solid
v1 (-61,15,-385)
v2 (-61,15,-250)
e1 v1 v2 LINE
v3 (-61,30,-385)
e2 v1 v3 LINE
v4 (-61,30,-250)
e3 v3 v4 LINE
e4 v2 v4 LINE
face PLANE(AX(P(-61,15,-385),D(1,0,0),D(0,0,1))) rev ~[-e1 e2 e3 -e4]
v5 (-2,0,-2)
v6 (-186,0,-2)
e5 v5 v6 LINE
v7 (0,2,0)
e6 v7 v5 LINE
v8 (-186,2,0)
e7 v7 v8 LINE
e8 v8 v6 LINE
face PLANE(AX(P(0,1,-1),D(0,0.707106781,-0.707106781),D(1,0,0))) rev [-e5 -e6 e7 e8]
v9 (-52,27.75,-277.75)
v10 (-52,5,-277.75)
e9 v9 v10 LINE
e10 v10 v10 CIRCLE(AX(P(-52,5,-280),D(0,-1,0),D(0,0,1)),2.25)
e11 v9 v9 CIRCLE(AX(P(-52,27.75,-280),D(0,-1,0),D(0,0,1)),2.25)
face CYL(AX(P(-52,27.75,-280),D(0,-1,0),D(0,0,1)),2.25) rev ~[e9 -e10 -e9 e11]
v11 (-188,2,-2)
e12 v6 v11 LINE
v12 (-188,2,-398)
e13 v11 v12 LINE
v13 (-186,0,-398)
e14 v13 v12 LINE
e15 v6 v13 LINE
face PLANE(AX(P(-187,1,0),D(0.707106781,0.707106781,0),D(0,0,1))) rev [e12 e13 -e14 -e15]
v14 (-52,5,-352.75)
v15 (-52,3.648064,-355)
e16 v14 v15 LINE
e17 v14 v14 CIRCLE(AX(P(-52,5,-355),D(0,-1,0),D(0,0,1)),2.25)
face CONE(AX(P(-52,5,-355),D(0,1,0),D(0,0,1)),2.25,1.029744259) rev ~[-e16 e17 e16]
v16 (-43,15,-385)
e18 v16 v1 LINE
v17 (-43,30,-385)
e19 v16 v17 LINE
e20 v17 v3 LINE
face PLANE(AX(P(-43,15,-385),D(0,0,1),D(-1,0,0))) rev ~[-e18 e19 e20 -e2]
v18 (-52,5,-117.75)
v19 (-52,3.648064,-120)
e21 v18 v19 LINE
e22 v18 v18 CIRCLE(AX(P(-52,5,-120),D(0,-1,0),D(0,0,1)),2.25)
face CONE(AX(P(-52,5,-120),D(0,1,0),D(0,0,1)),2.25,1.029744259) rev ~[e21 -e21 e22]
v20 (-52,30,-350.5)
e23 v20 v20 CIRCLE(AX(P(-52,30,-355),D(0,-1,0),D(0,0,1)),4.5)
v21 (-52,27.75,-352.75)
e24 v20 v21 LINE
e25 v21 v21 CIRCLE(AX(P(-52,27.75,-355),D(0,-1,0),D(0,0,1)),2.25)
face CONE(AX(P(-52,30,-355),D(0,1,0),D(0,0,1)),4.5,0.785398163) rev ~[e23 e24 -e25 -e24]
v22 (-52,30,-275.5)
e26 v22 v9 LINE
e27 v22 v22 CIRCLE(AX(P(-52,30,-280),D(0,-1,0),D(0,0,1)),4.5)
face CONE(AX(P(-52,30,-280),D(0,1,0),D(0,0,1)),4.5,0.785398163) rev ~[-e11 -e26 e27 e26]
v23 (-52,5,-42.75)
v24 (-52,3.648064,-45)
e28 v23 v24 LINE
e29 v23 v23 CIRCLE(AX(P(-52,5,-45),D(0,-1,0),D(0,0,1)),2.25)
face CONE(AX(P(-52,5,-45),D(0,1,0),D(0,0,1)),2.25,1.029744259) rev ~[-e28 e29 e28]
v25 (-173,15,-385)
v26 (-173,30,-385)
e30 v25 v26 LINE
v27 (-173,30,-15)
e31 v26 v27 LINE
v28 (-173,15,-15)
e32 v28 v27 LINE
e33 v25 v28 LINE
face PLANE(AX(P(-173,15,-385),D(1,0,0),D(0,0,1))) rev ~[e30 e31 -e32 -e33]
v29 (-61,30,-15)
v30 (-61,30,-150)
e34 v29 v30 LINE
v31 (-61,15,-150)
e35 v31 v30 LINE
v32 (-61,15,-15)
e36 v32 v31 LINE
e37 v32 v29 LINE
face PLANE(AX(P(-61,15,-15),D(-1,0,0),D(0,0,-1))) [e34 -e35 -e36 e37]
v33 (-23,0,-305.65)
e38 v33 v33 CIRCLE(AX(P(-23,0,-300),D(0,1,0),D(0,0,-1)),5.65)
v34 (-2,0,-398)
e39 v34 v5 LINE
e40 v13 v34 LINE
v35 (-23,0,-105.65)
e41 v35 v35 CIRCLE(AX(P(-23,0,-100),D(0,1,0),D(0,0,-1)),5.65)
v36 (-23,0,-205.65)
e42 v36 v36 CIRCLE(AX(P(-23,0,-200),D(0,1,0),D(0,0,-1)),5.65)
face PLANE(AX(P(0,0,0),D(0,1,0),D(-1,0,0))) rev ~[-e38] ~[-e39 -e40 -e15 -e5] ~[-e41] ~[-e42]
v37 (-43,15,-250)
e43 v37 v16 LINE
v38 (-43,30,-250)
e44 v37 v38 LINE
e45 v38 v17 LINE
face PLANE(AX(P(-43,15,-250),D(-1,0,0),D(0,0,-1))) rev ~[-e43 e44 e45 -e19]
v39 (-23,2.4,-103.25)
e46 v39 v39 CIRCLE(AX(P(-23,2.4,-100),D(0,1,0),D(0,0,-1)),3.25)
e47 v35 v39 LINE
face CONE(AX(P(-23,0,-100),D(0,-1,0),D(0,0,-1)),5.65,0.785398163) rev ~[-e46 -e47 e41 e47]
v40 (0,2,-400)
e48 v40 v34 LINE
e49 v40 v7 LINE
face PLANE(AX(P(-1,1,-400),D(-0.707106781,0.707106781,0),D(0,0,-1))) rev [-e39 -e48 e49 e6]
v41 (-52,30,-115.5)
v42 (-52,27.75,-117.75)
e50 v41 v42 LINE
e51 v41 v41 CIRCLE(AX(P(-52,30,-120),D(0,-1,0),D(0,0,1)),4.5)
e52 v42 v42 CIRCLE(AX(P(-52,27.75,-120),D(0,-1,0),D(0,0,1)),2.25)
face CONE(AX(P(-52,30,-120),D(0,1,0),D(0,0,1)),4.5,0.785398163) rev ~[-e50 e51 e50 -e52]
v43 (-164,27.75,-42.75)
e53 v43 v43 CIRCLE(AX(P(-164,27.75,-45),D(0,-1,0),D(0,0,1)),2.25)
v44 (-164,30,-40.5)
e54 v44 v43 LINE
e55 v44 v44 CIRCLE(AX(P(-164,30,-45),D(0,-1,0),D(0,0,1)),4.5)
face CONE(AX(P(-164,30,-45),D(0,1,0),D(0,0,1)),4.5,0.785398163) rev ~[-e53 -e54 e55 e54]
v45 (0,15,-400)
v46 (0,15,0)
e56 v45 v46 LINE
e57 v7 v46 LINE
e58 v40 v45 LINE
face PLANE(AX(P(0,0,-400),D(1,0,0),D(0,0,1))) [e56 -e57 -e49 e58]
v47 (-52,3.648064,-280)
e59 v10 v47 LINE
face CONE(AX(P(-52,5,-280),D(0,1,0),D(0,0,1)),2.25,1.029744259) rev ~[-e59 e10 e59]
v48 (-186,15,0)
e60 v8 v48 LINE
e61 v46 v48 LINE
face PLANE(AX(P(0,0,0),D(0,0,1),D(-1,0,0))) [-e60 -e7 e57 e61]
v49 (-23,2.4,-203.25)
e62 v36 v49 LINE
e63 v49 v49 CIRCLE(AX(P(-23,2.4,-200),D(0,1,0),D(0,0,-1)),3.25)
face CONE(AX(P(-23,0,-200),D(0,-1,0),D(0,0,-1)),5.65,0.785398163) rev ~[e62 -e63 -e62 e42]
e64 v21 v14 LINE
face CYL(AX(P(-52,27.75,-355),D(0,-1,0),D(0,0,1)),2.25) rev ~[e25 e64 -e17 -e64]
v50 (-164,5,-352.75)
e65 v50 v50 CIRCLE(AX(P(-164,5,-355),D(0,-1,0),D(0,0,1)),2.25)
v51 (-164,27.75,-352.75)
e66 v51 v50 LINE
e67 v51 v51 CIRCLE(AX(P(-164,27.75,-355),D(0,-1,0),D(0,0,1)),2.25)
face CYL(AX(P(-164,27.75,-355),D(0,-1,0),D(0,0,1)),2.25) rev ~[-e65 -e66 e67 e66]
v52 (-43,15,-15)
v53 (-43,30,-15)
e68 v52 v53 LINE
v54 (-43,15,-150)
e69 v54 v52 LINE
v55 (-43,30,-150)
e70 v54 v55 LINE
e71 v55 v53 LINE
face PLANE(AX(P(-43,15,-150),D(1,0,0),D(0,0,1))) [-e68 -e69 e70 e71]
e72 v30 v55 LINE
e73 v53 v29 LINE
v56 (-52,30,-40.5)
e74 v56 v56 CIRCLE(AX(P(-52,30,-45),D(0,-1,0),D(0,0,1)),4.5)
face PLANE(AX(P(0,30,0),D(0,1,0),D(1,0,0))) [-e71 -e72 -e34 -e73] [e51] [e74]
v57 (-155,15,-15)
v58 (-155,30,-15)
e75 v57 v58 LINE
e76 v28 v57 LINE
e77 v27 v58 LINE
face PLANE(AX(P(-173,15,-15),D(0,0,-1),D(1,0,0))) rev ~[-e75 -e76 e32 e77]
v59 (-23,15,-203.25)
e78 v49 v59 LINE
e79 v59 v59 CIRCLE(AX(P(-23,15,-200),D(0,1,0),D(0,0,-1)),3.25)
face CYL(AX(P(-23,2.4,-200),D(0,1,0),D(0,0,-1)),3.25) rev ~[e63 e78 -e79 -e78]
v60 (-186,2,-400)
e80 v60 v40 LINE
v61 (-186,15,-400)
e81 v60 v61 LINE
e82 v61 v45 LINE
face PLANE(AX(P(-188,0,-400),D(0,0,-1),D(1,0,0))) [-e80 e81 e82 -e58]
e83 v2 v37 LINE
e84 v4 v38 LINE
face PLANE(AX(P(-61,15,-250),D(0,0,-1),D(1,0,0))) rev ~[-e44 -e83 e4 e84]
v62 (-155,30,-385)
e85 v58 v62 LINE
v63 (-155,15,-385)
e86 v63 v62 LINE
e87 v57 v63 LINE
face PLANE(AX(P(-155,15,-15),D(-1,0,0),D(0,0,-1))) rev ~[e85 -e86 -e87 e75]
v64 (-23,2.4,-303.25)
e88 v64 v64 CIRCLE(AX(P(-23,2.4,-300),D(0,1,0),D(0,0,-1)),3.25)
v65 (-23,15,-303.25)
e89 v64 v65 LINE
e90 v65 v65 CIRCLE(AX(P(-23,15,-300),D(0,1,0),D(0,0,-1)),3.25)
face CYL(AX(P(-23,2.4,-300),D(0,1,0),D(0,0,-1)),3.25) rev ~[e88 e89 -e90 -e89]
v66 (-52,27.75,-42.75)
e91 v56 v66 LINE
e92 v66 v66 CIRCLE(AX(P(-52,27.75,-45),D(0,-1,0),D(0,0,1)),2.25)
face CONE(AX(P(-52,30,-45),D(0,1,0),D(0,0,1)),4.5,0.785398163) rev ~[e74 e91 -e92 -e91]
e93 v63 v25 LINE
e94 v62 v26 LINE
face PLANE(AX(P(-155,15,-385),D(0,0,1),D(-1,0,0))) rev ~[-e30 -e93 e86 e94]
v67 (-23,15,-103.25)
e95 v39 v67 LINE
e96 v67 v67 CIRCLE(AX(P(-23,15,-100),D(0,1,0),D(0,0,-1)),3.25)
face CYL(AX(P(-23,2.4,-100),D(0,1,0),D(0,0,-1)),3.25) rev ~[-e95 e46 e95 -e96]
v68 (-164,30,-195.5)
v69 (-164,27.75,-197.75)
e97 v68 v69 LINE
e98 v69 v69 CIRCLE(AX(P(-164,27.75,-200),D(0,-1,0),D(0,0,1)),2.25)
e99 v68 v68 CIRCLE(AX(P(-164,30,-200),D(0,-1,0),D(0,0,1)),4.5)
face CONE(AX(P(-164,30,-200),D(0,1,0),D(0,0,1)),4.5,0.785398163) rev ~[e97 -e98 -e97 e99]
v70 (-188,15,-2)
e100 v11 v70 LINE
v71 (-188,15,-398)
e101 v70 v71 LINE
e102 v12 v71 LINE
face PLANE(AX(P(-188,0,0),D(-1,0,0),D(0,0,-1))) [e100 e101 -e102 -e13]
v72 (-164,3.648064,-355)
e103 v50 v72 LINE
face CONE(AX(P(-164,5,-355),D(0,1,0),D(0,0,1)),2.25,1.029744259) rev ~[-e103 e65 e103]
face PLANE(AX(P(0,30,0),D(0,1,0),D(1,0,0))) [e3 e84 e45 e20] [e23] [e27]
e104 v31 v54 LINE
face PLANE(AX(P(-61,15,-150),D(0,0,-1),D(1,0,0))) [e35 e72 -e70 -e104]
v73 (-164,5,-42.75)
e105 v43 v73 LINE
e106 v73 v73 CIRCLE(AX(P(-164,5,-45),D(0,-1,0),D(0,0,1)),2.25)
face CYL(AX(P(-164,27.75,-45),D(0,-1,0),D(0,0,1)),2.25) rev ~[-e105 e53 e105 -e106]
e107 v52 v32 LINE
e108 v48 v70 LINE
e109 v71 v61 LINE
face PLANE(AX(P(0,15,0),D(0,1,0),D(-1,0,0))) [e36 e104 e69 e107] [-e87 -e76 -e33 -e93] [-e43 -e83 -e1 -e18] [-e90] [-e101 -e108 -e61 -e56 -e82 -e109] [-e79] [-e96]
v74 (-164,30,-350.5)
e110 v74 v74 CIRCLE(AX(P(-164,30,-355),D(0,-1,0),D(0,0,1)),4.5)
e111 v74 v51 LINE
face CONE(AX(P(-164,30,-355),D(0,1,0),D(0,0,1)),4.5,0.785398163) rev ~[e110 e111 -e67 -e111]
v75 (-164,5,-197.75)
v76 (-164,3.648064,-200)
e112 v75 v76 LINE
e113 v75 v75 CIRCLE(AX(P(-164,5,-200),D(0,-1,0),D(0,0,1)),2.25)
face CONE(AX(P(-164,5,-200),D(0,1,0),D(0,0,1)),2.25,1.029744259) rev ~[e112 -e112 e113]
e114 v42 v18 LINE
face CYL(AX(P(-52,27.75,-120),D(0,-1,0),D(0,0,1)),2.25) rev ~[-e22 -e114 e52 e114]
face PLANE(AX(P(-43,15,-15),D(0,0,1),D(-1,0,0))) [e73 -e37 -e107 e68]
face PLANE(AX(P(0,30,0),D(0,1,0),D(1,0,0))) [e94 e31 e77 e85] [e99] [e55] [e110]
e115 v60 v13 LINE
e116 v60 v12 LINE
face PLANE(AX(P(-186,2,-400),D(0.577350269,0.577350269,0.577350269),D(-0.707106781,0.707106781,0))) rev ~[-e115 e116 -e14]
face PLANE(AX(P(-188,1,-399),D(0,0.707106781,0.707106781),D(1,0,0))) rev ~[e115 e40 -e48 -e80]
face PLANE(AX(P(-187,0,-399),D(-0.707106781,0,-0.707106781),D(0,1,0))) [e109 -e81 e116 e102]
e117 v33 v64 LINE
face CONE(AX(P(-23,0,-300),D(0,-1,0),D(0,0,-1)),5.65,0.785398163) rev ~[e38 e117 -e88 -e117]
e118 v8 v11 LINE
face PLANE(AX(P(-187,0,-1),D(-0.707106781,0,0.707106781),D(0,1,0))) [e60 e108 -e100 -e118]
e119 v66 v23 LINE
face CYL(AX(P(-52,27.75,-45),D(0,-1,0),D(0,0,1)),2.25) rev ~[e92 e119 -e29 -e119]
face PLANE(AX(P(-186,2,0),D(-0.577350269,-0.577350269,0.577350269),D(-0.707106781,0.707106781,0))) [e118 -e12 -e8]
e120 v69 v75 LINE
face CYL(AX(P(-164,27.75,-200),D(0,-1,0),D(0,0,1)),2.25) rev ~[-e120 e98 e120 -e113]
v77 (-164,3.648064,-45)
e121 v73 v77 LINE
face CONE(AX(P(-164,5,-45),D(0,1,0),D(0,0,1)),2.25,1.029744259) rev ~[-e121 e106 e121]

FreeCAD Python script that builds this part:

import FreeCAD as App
import Part
import Sketcher
from FreeCAD import Vector
Q = App.Units.Quantity


def edges_at(feature, points):
    """Names of the edges that pass closest to the given points."""
    edges = feature.Shape.Edges
    near = lambda p: min(range(len(edges)), key=lambda i: edges[i].distToShape(Part.Vertex(*p))[0])
    return sorted({f"Edge{near(p) + 1}" for p in points})

doc = App.newDocument("Part")
body = doc.addObject("PartDesign::Body", "Body")

# Sketch on XZ plane
sketch1 = doc.addObject("Sketcher::SketchObject", "Sketch")
body.addObject(sketch1)
sketch1.AttachmentSupport = (doc.XZ_Plane, [""])
sketch1.MapMode = "FlatFace"
sketch1.addGeometry([
    Part.LineSegment(Vector(-188, 0, 0), Vector(0, 0, 0)),
    Part.LineSegment(Vector(0, 0, 0), Vector(0, -400, 0)),
    Part.LineSegment(Vector(0, -400, 0), Vector(-188, -400, 0)),
    Part.LineSegment(Vector(-188, -400, 0), Vector(-188, 0, 0)),
], False)
sketch1.addConstraint([
    Sketcher.Constraint("Coincident", 0, 2, 1, 1),
    Sketcher.Constraint("Coincident", 1, 2, 2, 1),
    Sketcher.Constraint("Coincident", 2, 2, 3, 1),
    Sketcher.Constraint("Coincident", 3, 2, 0, 1),
    Sketcher.Constraint("Horizontal", 0),
    Sketcher.Constraint("Vertical", 1),
    Sketcher.Constraint("Horizontal", 2),
    Sketcher.Constraint("Vertical", 3),
    Sketcher.Constraint("Coincident", 0, 2, -1, 1),
    Sketcher.Constraint("DistanceX", 0, 1, 0, 2, Q("188 mm")),
    Sketcher.Constraint("DistanceY", 1, 2, 1, 1, Q("400 mm")),
])
pad1 = doc.addObject("PartDesign::Pad", "Pad")
body.addObject(pad1)
pad1.Profile = sketch1
pad1.Length = 15
pad1.Reversed = True

# Sketch on XZ plane
sketch2 = doc.addObject("Sketcher::SketchObject", "Sketch001")
body.addObject(sketch2)
sketch2.AttachmentSupport = (doc.XZ_Plane, [""])
sketch2.MapMode = "FlatFace"
sketch2.AttachmentOffset = App.Placement(Vector(0, 0, -15), App.Rotation())
sketch2.addGeometry([
    Part.LineSegment(Vector(-173, -385, 0), Vector(-173, -15, 0)),  # 0
    Part.LineSegment(Vector(-173, -15, 0), Vector(-155, -15, 0)),  # 1
    Part.LineSegment(Vector(-155, -15, 0), Vector(-155, -385, 0)),  # 2
    Part.LineSegment(Vector(-155, -385, 0), Vector(-173, -385, 0)),  # 3
    Part.LineSegment(Vector(-61, -15, 0), Vector(-43, -15, 0)),  # 4
    Part.LineSegment(Vector(-43, -15, 0), Vector(-43, -150, 0)),  # 5
    Part.LineSegment(Vector(-43, -150, 0), Vector(-61, -150, 0)),  # 6
    Part.LineSegment(Vector(-61, -150, 0), Vector(-61, -15, 0)),  # 7
    Part.LineSegment(Vector(-43, -250, 0), Vector(-43, -385, 0)),  # 8
    Part.LineSegment(Vector(-43, -385, 0), Vector(-61, -385, 0)),  # 9
    Part.LineSegment(Vector(-61, -385, 0), Vector(-61, -250, 0)),  # 10
    Part.LineSegment(Vector(-61, -250, 0), Vector(-43, -250, 0)),  # 11
], False)
sketch2.addConstraint([
    Sketcher.Constraint("Coincident", 0, 2, 1, 1),
    Sketcher.Constraint("Coincident", 1, 2, 2, 1),
    Sketcher.Constraint("Coincident", 2, 2, 3, 1),
    Sketcher.Constraint("Coincident", 3, 2, 0, 1),
    Sketcher.Constraint("Coincident", 4, 2, 5, 1),
    Sketcher.Constraint("Coincident", 5, 2, 6, 1),
    Sketcher.Constraint("Coincident", 6, 2, 7, 1),
    Sketcher.Constraint("Coincident", 7, 2, 4, 1),
    Sketcher.Constraint("Coincident", 8, 2, 9, 1),
    Sketcher.Constraint("Coincident", 9, 2, 10, 1),
    Sketcher.Constraint("Coincident", 10, 2, 11, 1),
    Sketcher.Constraint("Coincident", 11, 2, 8, 1),
    Sketcher.Constraint("Vertical", 0),
    Sketcher.Constraint("Horizontal", 1),
    Sketcher.Constraint("Vertical", 2),
    Sketcher.Constraint("Horizontal", 3),
    Sketcher.Constraint("Horizontal", 4),
    Sketcher.Constraint("Vertical", 5),
    Sketcher.Constraint("Horizontal", 6),
    Sketcher.Constraint("Vertical", 7),
    Sketcher.Constraint("Vertical", 8),
    Sketcher.Constraint("Horizontal", 9),
    Sketcher.Constraint("Vertical", 10),
    Sketcher.Constraint("Horizontal", 11),
    Sketcher.Constraint("Horizontal", 1, 2, 4, 2),
    Sketcher.Constraint("Horizontal", 3, 2, 8, 2),
    Sketcher.Constraint("Vertical", 5, 2, 8, 2),
    Sketcher.Constraint("Vertical", 7, 2, 9, 2),
    Sketcher.Constraint("Equal", 3, 4),
    Sketcher.Constraint("Equal", 7, 8),
    Sketcher.Constraint("DistanceX", 1, 1, 1, 2, Q("18 mm")),
    Sketcher.Constraint("DistanceY", 0, 1, 0, 2, Q("370 mm")),
    Sketcher.Constraint("DistanceY", 5, 2, 5, 1, Q("135 mm")),
    Sketcher.Constraint("DistanceY", 0, 2, -1, 1, Q("15 mm")),
    Sketcher.Constraint("DistanceX", 1, 2, -1, 1, Q("155 mm")),
    Sketcher.Constraint("DistanceX", 4, 2, -1, 1, Q("43 mm")),
])
pad2 = doc.addObject("PartDesign::Pad", "Pad001")
body.addObject(pad2)
pad2.Profile = sketch2
pad2.Length = 15
pad2.Reversed = True

# Sketch on XZ plane
sketch3 = doc.addObject("Sketcher::SketchObject", "Sketch002")
body.addObject(sketch3)
sketch3.AttachmentSupport = (doc.XZ_Plane, [""])
sketch3.MapMode = "FlatFace"
sketch3.AttachmentOffset = App.Placement(Vector(0, 0, -30), App.Rotation())
sketch3.addGeometry([
    Part.Circle(Vector(-52, -45, 0), Vector(0, 0, 1), 2.2),  # 0
    Part.Circle(Vector(-52, -120, 0), Vector(0, 0, 1), 2.2),  # 1
    Part.Circle(Vector(-52, -280, 0), Vector(0, 0, 1), 2.2),  # 2
    Part.Circle(Vector(-52, -355, 0), Vector(0, 0, 1), 2.2),  # 3
    Part.Circle(Vector(-164, -355, 0), Vector(0, 0, 1), 2.2),  # 4
    Part.Circle(Vector(-164, -200, 0), Vector(0, 0, 1), 2.2),  # 5
    Part.Circle(Vector(-164, -45, 0), Vector(0, 0, 1), 2.2),  # 6
], False)
sketch3.addConstraint([
    Sketcher.Constraint("Equal", 0, 1),
    Sketcher.Constraint("Equal", 1, 2),
    Sketcher.Constraint("Equal", 2, 3),
    Sketcher.Constraint("Equal", 3, 4),
    Sketcher.Constraint("Equal", 4, 5),
    Sketcher.Constraint("Equal", 5, 6),
    Sketcher.Constraint("Horizontal", 3, 3, 4, 3),
    Sketcher.Constraint("Horizontal", 0, 3, 6, 3),
    Sketcher.Constraint("Vertical", 0, 3, 1, 3),
    Sketcher.Constraint("Vertical", 1, 3, 2, 3),
    Sketcher.Constraint("Vertical", 2, 3, 3, 3),
    Sketcher.Constraint("Vertical", 4, 3, 5, 3),
    Sketcher.Constraint("Vertical", 5, 3, 6, 3),
    Sketcher.Constraint("Diameter", 0, Q("4.5 mm")),
    Sketcher.Constraint("DistanceX", 0, 3, -1, 1, Q("52 mm")),
    Sketcher.Constraint("DistanceY", 0, 3, -1, 1, Q("45 mm")),
    Sketcher.Constraint("DistanceY", 1, 3, -1, 1, Q("120 mm")),
    Sketcher.Constraint("DistanceY", 2, 3, -1, 1, Q("280 mm")),
    Sketcher.Constraint("DistanceY", 3, 3, -1, 1, Q("355 mm")),
    Sketcher.Constraint("DistanceX", 4, 3, -1, 1, Q("164 mm")),
    Sketcher.Constraint("DistanceY", 5, 3, -1, 1, Q("200 mm")),
])
doc.recompute()
hole = doc.addObject("PartDesign::Hole", "Hole")
body.addObject(hole)
hole.Profile = sketch3
hole.ThreadType = "None"
hole.Diameter = 4.5
hole.DepthType = "Dimension"
hole.Depth = 25
hole.DrillPoint = "Angled"
hole.DrillPointAngle = 118
hole.HoleCutType = "Countersink"
hole.HoleCutDiameter = 9
hole.HoleCutCountersinkAngle = 90
hole.Reversed = True

# Sketch on XZ plane
sketch4 = doc.addObject("Sketcher::SketchObject", "Sketch003")
body.addObject(sketch4)
sketch4.AttachmentSupport = (doc.XZ_Plane, [""])
sketch4.MapMode = "FlatFace"
sketch4.addGeometry([
    Part.Circle(Vector(-23, -100, 0), Vector(0, 0, 1), 3.2),
    Part.Circle(Vector(-23, -200, 0), Vector(0, 0, 1), 3.2),
    Part.Circle(Vector(-23, -300, 0), Vector(0, 0, 1), 3.2),
], False)
sketch4.addConstraint([
    Sketcher.Constraint("Equal", 0, 1),
    Sketcher.Constraint("Equal", 1, 2),
    Sketcher.Constraint("Vertical", 0, 3, 1, 3),
    Sketcher.Constraint("Vertical", 1, 3, 2, 3),
    Sketcher.Constraint("Diameter", 0, Q("6.5 mm")),
    Sketcher.Constraint("DistanceX", 0, 3, -1, 1, Q("23 mm")),
    Sketcher.Constraint("DistanceY", 0, 3, -1, 1, Q("100 mm")),
    Sketcher.Constraint("DistanceY", 1, 3, -1, 1, Q("200 mm")),
    Sketcher.Constraint("DistanceY", 2, 3, -1, 1, Q("300 mm")),
])
doc.recompute()
hole2 = doc.addObject("PartDesign::Hole", "Hole001")
body.addObject(hole2)
hole2.Profile = sketch4
hole2.ThreadType = "None"
hole2.Diameter = 6.5
hole2.DepthType = "ThroughAll"
hole2.HoleCutType = "Countersink"
hole2.HoleCutDiameter = 11.3
hole2.HoleCutCountersinkAngle = 90
doc.recompute()

chamfer = doc.addObject("PartDesign::Chamfer", "Chamfer")
body.addObject(chamfer)
chamfer.Base = (hole2, edges_at(hole2, [
    (-188, 0, -200),
    (-94, 0, 0),
    (-188, 7.5, 0),
    (0, 0, -200),
    (-94, 0, -400),
    (-188, 7.5, -400),
]))
chamfer.Size = 2

doc.recompute()
